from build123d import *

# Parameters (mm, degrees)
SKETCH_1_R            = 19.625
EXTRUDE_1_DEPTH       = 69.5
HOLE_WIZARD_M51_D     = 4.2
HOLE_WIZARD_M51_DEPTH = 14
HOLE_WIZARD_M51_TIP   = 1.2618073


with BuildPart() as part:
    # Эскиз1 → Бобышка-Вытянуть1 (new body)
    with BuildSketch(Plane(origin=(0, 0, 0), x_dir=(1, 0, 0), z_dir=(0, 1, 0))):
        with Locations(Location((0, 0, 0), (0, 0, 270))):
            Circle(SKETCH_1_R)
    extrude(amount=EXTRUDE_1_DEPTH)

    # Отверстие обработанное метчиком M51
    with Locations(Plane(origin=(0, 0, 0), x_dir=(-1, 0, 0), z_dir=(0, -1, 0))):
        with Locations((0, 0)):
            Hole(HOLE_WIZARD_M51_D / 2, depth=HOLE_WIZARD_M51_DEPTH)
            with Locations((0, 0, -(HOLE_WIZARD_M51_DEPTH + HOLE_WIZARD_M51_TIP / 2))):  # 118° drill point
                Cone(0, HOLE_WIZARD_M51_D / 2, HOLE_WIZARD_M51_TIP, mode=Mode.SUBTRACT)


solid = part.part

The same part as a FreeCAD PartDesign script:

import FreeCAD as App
import Part
import Sketcher
from FreeCAD import Vector

doc = App.newDocument("Part")
body = doc.addObject("PartDesign::Body", "Body")

# Sketch on XZ plane
sketch1 = body.newObject("Sketcher::SketchObject", "Sketch")
sketch1.AttachmentSupport = (doc.getObject("XZ_Plane"), [""])
sketch1.MapMode = "FlatFace"
sketch1.addGeometry(Part.Circle(Vector(0, 0, 0), Vector(0, 0, 1), 20), False)
sketch1.addConstraint([
    Sketcher.Constraint("Coincident", 0, 3, -1, 1),
    Sketcher.Constraint("Diameter", 0, 39.25),
])
pad1 = body.newObject("PartDesign::Pad", "Pad")
pad1.Profile = sketch1
pad1.Length = 69.5
pad1.Reversed = True

# Sketch on XZ plane
sketch2 = body.newObject("Sketcher::SketchObject", "Sketch001")
sketch2.AttachmentSupport = (doc.getObject("XZ_Plane"), [""])
sketch2.MapMode = "FlatFace"
sketch2.addGeometry(Part.Circle(Vector(0, 0, 0), Vector(0, 0, 1), 2.1), False)
sketch2.addConstraint([
    Sketcher.Constraint("Coincident", 0, 3, -1, 1),
    Sketcher.Constraint("Diameter", 0, 4.2),
])
doc.recompute()
hole = body.newObject("PartDesign::Hole", "Hole")
hole.Profile = sketch2
hole.ThreadType = "None"
hole.Diameter = 4.2
hole.DepthType = "Dimension"
hole.Depth = 14
hole.DrillPoint = "Angled"
hole.DrillPointAngle = 118

doc.recompute()
